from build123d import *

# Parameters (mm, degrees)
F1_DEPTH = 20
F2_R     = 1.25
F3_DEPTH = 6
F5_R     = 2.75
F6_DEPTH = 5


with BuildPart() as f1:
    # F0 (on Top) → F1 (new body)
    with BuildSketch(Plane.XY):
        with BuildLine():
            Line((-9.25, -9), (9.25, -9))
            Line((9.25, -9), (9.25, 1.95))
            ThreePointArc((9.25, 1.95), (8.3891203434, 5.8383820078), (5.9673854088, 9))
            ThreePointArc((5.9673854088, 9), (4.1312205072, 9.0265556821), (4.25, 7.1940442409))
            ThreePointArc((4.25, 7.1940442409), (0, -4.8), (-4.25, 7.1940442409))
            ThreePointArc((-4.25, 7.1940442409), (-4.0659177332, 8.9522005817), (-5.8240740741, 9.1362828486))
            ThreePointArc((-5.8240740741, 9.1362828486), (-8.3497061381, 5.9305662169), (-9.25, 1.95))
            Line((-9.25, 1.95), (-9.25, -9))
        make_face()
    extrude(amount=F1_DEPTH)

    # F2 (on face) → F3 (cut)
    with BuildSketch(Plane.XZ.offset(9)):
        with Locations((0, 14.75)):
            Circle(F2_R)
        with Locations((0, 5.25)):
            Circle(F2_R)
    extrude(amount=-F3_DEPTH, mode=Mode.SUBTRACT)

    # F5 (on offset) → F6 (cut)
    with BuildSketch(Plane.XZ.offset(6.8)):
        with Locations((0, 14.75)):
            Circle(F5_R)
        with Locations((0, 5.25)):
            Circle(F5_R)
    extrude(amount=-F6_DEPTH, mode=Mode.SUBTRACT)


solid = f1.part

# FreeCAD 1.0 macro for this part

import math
import FreeCAD as App
import Part
import Sketcher

V = App.Vector

doc = App.newDocument("Part")
body = doc.addObject("PartDesign::Body", "Body")

sketch1 = doc.addObject("Sketcher::SketchObject", "Sketch")
body.addObject(sketch1)
sketch1.AttachmentSupport = (doc.XY_Plane, [""])
sketch1.MapMode = "FlatFace"
sketch1.addGeometry([
    Part.LineSegment(V(-9.2, -9, 0), V(9.2, -9, 0)),
    Part.LineSegment(V(9.2, -9, 0), V(9.2, 1.9, 0)),
    Part.ArcOfCircle(Part.Circle(V(0, 1.9, 0), V(0, 0, 1), 9.2), math.radians(0), math.radians(50)),
    Part.ArcOfCircle(Part.Circle(V(5, 8.2, 0), V(0, 0, 1), 1.2), math.radians(42), math.radians(231)),
    Part.ArcOfCircle(Part.Circle(V(0, 1.9, 0), V(0, 0, 1), 6.8), math.radians(129), math.radians(411)),
    Part.ArcOfCircle(Part.Circle(V(-5, 8.2, 0), V(0, 0, 1), 1.2), math.radians(-51), math.radians(129)),
    Part.ArcOfCircle(Part.Circle(V(0, 1.9, 0), V(0, 0, 1), 9.2), math.radians(129), math.radians(180)),
    Part.LineSegment(V(-9.2, 1.9, 0), V(-9.2, -9, 0)),
], False)
sketch1.addConstraint([
    Sketcher.Constraint("Coincident", 0, 2, 1, 1),
    Sketcher.Constraint("Tangent", 1, 2, 2, 1),
    Sketcher.Constraint("Coincident", 2, 2, 3, 1),
    Sketcher.Constraint("Tangent", 3, 2, 4, 2),
    Sketcher.Constraint("Tangent", 4, 1, 5, 1),
    Sketcher.Constraint("Tangent", 5, 2, 6, 1),
    Sketcher.Constraint("Tangent", 6, 2, 7, 1),
    Sketcher.Constraint("Coincident", 7, 2, 0, 1),
    Sketcher.Constraint("Horizontal", 0),
    Sketcher.Constraint("Vertical", 1),
    Sketcher.Constraint("Vertical", 7),
    Sketcher.Constraint("Coincident", 6, 3, 4, 3),
    Sketcher.Constraint("Equal", 3, 5),
    Sketcher.Constraint("Symmetric", 3, 3, 5, 3, -2),
    Sketcher.Constraint("Symmetric", 1, 2, 6, 2, -2),
    Sketcher.Constraint("Radius", 3, 1.25),
    Sketcher.Constraint("Radius", 4, 6.75),
    Sketcher.Constraint("DistanceY", 0, 2, -1, 1, 9.0),
    Sketcher.Constraint("DistanceY", -1, 1, 2, 2, 9.0),
    Sketcher.Constraint("DistanceX", 6, 2, 4, 1, 5.0),
    Sketcher.Constraint("DistanceY", 1, 1, 1, 2, 10.95),
])
pad1 = doc.addObject("PartDesign::Pad", "Pad")
body.addObject(pad1)
pad1.Profile = sketch1
pad1.Length = 20

sketch2 = doc.addObject("Sketcher::SketchObject", "Sketch001")
body.addObject(sketch2)
sketch2.AttachmentSupport = (doc.XZ_Plane, [""])
sketch2.MapMode = "FlatFace"
sketch2.AttachmentOffset = App.Placement(V(0, 0, 9), App.Rotation())
sketch2.addGeometry([
    Part.Circle(V(0, 14.8, 0), V(0, 0, 1), 1.2),
    Part.Circle(V(0, 5.2, 0), V(0, 0, 1), 1.2),
], False)
sketch2.addConstraint([
    Sketcher.Constraint("Equal", 0, 1),
    Sketcher.Constraint("PointOnObject", 0, 3, -2),
    Sketcher.Constraint("PointOnObject", 1, 3, -2),
    Sketcher.Constraint("Diameter", 0, 2.5),
    Sketcher.Constraint("DistanceY", 1, 3, 0, 3, 9.5),
    Sketcher.Constraint("DistanceY", -1, 1, 0, 3, 14.75),
])
pocket1 = doc.addObject("PartDesign::Pocket", "Pocket")
body.addObject(pocket1)
pocket1.Profile = sketch2
pocket1.Length = 6

sketch3 = doc.addObject("Sketcher::SketchObject", "Sketch002")
body.addObject(sketch3)
sketch3.AttachmentSupport = (doc.XZ_Plane, [""])
sketch3.MapMode = "FlatFace"
sketch3.AttachmentOffset = App.Placement(V(0, 0, 6.8), App.Rotation())
sketch3.addGeometry([
    Part.Circle(V(0, 14.8, 0), V(0, 0, 1), 2.8),
    Part.Circle(V(0, 5.2, 0), V(0, 0, 1), 2.8),
], False)
sketch3.addConstraint([
    Sketcher.Constraint("Equal", 0, 1),
    Sketcher.Constraint("PointOnObject", 0, 3, -2),
    Sketcher.Constraint("PointOnObject", 1, 3, -2),
    Sketcher.Constraint("Diameter", 0, 5.5),
    Sketcher.Constraint("DistanceY", 1, 3, 0, 3, 9.5),
    Sketcher.Constraint("DistanceY", -1, 1, 0, 3, 14.75),
])
pocket2 = doc.addObject("PartDesign::Pocket", "Pocket001")
body.addObject(pocket2)
pocket2.Profile = sketch3
pocket2.Length = 5

doc.recompute()
